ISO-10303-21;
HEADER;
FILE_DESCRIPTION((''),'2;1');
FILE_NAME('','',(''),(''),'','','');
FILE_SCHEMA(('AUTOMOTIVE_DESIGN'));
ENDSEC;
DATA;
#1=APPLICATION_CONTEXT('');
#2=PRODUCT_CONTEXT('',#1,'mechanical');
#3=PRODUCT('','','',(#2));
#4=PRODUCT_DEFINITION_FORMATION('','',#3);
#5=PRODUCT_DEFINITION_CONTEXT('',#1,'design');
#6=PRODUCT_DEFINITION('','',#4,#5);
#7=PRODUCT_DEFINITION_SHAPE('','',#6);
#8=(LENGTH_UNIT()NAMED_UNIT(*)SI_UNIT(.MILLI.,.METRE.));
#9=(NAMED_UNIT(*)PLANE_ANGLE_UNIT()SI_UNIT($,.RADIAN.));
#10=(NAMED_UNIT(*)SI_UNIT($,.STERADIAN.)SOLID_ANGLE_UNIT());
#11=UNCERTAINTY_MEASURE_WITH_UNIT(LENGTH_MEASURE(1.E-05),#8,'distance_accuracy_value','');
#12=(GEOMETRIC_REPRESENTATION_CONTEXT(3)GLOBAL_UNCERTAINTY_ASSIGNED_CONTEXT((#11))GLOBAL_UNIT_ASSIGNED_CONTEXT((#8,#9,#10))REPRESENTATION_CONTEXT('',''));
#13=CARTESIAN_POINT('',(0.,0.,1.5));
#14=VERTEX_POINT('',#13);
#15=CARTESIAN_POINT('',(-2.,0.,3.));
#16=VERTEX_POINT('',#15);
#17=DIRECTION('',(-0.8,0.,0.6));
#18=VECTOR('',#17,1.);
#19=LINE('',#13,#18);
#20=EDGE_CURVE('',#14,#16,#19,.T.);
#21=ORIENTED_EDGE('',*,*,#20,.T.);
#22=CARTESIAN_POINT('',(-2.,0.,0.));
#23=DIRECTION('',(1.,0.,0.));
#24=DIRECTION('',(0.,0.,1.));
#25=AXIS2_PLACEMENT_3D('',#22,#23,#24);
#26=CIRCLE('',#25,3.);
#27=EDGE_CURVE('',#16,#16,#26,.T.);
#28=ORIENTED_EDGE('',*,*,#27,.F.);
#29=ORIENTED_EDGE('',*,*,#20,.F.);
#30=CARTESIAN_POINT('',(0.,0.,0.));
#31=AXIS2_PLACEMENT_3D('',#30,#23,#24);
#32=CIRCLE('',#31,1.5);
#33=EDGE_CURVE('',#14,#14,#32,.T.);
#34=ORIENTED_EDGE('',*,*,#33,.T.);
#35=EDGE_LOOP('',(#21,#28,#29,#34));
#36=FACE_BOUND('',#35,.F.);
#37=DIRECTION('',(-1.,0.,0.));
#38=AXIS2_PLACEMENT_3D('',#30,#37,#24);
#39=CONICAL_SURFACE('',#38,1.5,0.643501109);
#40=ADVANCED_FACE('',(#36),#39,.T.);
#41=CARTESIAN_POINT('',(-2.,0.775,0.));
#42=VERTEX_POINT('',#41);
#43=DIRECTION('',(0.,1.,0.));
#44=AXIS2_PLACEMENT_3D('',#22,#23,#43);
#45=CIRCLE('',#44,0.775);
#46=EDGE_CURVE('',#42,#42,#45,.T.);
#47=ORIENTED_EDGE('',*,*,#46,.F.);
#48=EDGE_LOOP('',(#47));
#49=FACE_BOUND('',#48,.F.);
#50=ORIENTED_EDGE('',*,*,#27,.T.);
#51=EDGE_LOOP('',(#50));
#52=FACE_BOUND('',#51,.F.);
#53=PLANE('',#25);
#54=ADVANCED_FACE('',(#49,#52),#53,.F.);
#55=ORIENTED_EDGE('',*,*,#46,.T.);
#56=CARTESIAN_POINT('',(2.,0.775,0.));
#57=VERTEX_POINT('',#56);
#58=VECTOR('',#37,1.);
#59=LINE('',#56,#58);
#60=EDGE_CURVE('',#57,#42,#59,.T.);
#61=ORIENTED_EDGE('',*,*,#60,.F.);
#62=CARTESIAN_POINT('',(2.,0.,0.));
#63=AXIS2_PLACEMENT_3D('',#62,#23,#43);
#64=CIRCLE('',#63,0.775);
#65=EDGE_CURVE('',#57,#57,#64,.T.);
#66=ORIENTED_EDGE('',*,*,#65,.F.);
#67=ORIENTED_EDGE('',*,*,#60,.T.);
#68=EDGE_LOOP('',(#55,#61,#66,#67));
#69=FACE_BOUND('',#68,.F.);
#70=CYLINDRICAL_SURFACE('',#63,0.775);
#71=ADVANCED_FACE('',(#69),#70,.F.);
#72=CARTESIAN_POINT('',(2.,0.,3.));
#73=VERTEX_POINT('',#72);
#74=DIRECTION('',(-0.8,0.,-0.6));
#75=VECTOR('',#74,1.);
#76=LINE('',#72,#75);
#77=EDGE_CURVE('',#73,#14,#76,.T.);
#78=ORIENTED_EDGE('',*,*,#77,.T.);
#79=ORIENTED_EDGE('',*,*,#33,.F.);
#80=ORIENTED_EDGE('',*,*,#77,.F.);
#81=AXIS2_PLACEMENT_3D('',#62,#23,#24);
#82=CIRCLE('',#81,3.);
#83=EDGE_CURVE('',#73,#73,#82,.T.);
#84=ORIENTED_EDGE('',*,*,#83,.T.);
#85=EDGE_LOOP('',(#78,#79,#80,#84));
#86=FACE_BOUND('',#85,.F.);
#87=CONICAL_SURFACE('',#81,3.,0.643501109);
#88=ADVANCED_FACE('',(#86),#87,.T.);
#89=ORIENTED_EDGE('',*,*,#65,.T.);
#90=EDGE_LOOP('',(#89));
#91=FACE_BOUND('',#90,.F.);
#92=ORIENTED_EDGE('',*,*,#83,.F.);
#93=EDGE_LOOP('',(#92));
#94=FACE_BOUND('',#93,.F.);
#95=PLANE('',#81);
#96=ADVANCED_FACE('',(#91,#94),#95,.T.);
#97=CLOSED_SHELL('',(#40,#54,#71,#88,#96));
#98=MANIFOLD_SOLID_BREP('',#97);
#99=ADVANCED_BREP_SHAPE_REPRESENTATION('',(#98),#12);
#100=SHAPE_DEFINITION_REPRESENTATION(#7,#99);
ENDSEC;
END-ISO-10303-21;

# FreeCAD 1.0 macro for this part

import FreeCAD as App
import Part
import Sketcher

V = App.Vector
Q = App.Units.Quantity


def add_polygon(sketch, points):
    """Adds a closed chain of lines whose ends are joined by coincident constraints."""
    first, n = sketch.GeometryCount, len(points)
    for a, b in zip(points, points[1:] + points[:1]):
        sketch.addGeometry(Part.LineSegment(App.Vector(*a, 0), App.Vector(*b, 0)), False)
    for i in range(n):
        sketch.addConstraint(Sketcher.Constraint("Coincident", first + i, 2, first + (i + 1) % n, 1))

doc = App.newDocument("Part")
body = doc.addObject("PartDesign::Body", "Body")

# Sketch on XZ plane
sketch1 = body.newObject("Sketcher::SketchObject", "Sketch")
sketch1.AttachmentSupport = (doc.getObject("XZ_Plane"), [""])
sketch1.MapMode = "FlatFace"
add_polygon(sketch1, [(-2, 0), (2, 0), (2, 3), (0, 1.5), (-2, 3)])  # lines 0-4
sketch1.addConstraint(Sketcher.Constraint("Horizontal", 0))
sketch1.addConstraint(Sketcher.Constraint("Vertical", 1))
sketch1.addConstraint(Sketcher.Constraint("Vertical", 4))
sketch1.addConstraint(Sketcher.Constraint("Symmetric", 0, 2, 4, 2, -1, 1))
sketch1.addConstraint(Sketcher.Constraint("PointOnObject", 2, 2, -2))
sketch1.addConstraint(Sketcher.Constraint("Horizontal", 1, 2, 3, 2))
sketch1.addConstraint(Sketcher.Constraint("DistanceX", 0, 1, 0, 2, Q("4 mm")))
sketch1.addConstraint(Sketcher.Constraint("DistanceY", 1, 1, 1, 2, Q("3 mm")))
sketch1.addConstraint(Sketcher.Constraint("Distance", 2, Q("2.5 mm")))
revolution = body.newObject("PartDesign::Revolution", "Revolution")
revolution.Profile = sketch1
revolution.ReferenceAxis = (sketch1, ["H_Axis"])
revolution.Angle = 360

# Sketch on YZ plane
sketch2 = body.newObject("Sketcher::SketchObject", "Sketch001")
sketch2.AttachmentSupport = (doc.getObject("YZ_Plane"), [""])
sketch2.MapMode = "FlatFace"
sketch2.AttachmentOffset = App.Placement(V(0, 0, 2), App.Rotation())
sketch2.addGeometry(Part.Circle(V(0, 0, 0), V(0, 0, 1), 0.8), False)
sketch2.addConstraint(Sketcher.Constraint("Coincident", 0, 3, -1, 1))
sketch2.addConstraint(Sketcher.Constraint("Diameter", 0, Q("1.55 mm")))
pocket1 = body.newObject("PartDesign::Pocket", "Pocket")
pocket1.Profile = sketch2
pocket1.Length = 25

doc.recompute()
